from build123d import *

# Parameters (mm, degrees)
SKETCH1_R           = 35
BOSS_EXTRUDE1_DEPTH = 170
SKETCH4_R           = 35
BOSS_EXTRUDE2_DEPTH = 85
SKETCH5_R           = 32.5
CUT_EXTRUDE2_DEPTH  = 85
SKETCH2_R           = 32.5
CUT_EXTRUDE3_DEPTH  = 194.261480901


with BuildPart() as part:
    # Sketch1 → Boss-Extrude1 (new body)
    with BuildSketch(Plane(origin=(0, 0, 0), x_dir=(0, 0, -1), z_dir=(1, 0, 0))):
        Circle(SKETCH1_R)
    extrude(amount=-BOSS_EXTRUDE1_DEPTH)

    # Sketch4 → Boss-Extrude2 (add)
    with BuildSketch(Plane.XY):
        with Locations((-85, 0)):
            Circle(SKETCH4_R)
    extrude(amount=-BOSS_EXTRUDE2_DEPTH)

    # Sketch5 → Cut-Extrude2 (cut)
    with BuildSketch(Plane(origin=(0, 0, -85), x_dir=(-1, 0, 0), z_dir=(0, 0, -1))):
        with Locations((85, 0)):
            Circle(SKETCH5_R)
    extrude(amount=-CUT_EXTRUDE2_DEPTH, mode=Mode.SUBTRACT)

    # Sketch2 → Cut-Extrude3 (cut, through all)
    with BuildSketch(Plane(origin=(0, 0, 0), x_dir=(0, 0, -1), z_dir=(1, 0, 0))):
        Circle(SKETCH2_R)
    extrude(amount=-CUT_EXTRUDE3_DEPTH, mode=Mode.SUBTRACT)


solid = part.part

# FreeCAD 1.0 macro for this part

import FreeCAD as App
import Part
import Sketcher
Q = App.Units.Quantity

doc = App.newDocument("Part")
body = doc.addObject("PartDesign::Body", "Body")

# Sketch on YZ plane
sketch1 = body.newObject("Sketcher::SketchObject", "Sketch")
sketch1.AttachmentSupport = (doc.getObject("YZ_Plane"), [""])
sketch1.MapMode = "FlatFace"
sketch1.addGeometry(Part.Circle(App.Vector(0, 0, 0), App.Vector(0, 0, 1), 35), False)
sketch1.addConstraint(Sketcher.Constraint("Coincident", 0, 3, -1, 1))
sketch1.addConstraint(Sketcher.Constraint("Diameter", 0, Q("70 mm")))
pad1 = body.newObject("PartDesign::Pad", "Pad")
pad1.Profile = sketch1
pad1.Length = 170
pad1.Reversed = True

# Sketch on XY plane
sketch2 = body.newObject("Sketcher::SketchObject", "Sketch001")
sketch2.AttachmentSupport = (doc.getObject("XY_Plane"), [""])
sketch2.MapMode = "FlatFace"
sketch2.addGeometry(Part.Circle(App.Vector(-85, 0, 0), App.Vector(0, 0, 1), 35), False)
sketch2.addConstraint(Sketcher.Constraint("PointOnObject", 0, 3, -1))
sketch2.addConstraint(Sketcher.Constraint("Diameter", 0, Q("70 mm")))
sketch2.addConstraint(Sketcher.Constraint("DistanceX", 0, 3, -1, 1, Q("85 mm")))
pad2 = body.newObject("PartDesign::Pad", "Pad001")
pad2.Profile = sketch2
pad2.Length = 85
pad2.Reversed = True

# Sketch on XY plane
sketch3 = body.newObject("Sketcher::SketchObject", "Sketch002")
sketch3.AttachmentSupport = (doc.getObject("XY_Plane"), [""])
sketch3.MapMode = "FlatFace"
sketch3.AttachmentOffset = App.Placement(App.Vector(0, 0, -85), App.Rotation())
sketch3.addGeometry(Part.Circle(App.Vector(-85, 0, 0), App.Vector(0, 0, 1), 32), False)
sketch3.addConstraint(Sketcher.Constraint("PointOnObject", 0, 3, -1))
sketch3.addConstraint(Sketcher.Constraint("Diameter", 0, Q("65 mm")))
sketch3.addConstraint(Sketcher.Constraint("DistanceX", 0, 3, -1, 1, Q("85 mm")))
pocket1 = body.newObject("PartDesign::Pocket", "Pocket")
pocket1.Profile = sketch3
pocket1.Length = 85
pocket1.Reversed = True

# Sketch on YZ plane
sketch4 = body.newObject("Sketcher::SketchObject", "Sketch003")
sketch4.AttachmentSupport = (doc.getObject("YZ_Plane"), [""])
sketch4.MapMode = "FlatFace"
sketch4.addGeometry(Part.Circle(App.Vector(0, 0, 0), App.Vector(0, 0, 1), 32), False)
sketch4.addConstraint(Sketcher.Constraint("Coincident", 0, 3, -1, 1))
sketch4.addConstraint(Sketcher.Constraint("Diameter", 0, Q("65 mm")))
pocket2 = body.newObject("PartDesign::Pocket", "Pocket001")
pocket2.Profile = sketch4
pocket2.Type = "ThroughAll"

doc.recompute()
